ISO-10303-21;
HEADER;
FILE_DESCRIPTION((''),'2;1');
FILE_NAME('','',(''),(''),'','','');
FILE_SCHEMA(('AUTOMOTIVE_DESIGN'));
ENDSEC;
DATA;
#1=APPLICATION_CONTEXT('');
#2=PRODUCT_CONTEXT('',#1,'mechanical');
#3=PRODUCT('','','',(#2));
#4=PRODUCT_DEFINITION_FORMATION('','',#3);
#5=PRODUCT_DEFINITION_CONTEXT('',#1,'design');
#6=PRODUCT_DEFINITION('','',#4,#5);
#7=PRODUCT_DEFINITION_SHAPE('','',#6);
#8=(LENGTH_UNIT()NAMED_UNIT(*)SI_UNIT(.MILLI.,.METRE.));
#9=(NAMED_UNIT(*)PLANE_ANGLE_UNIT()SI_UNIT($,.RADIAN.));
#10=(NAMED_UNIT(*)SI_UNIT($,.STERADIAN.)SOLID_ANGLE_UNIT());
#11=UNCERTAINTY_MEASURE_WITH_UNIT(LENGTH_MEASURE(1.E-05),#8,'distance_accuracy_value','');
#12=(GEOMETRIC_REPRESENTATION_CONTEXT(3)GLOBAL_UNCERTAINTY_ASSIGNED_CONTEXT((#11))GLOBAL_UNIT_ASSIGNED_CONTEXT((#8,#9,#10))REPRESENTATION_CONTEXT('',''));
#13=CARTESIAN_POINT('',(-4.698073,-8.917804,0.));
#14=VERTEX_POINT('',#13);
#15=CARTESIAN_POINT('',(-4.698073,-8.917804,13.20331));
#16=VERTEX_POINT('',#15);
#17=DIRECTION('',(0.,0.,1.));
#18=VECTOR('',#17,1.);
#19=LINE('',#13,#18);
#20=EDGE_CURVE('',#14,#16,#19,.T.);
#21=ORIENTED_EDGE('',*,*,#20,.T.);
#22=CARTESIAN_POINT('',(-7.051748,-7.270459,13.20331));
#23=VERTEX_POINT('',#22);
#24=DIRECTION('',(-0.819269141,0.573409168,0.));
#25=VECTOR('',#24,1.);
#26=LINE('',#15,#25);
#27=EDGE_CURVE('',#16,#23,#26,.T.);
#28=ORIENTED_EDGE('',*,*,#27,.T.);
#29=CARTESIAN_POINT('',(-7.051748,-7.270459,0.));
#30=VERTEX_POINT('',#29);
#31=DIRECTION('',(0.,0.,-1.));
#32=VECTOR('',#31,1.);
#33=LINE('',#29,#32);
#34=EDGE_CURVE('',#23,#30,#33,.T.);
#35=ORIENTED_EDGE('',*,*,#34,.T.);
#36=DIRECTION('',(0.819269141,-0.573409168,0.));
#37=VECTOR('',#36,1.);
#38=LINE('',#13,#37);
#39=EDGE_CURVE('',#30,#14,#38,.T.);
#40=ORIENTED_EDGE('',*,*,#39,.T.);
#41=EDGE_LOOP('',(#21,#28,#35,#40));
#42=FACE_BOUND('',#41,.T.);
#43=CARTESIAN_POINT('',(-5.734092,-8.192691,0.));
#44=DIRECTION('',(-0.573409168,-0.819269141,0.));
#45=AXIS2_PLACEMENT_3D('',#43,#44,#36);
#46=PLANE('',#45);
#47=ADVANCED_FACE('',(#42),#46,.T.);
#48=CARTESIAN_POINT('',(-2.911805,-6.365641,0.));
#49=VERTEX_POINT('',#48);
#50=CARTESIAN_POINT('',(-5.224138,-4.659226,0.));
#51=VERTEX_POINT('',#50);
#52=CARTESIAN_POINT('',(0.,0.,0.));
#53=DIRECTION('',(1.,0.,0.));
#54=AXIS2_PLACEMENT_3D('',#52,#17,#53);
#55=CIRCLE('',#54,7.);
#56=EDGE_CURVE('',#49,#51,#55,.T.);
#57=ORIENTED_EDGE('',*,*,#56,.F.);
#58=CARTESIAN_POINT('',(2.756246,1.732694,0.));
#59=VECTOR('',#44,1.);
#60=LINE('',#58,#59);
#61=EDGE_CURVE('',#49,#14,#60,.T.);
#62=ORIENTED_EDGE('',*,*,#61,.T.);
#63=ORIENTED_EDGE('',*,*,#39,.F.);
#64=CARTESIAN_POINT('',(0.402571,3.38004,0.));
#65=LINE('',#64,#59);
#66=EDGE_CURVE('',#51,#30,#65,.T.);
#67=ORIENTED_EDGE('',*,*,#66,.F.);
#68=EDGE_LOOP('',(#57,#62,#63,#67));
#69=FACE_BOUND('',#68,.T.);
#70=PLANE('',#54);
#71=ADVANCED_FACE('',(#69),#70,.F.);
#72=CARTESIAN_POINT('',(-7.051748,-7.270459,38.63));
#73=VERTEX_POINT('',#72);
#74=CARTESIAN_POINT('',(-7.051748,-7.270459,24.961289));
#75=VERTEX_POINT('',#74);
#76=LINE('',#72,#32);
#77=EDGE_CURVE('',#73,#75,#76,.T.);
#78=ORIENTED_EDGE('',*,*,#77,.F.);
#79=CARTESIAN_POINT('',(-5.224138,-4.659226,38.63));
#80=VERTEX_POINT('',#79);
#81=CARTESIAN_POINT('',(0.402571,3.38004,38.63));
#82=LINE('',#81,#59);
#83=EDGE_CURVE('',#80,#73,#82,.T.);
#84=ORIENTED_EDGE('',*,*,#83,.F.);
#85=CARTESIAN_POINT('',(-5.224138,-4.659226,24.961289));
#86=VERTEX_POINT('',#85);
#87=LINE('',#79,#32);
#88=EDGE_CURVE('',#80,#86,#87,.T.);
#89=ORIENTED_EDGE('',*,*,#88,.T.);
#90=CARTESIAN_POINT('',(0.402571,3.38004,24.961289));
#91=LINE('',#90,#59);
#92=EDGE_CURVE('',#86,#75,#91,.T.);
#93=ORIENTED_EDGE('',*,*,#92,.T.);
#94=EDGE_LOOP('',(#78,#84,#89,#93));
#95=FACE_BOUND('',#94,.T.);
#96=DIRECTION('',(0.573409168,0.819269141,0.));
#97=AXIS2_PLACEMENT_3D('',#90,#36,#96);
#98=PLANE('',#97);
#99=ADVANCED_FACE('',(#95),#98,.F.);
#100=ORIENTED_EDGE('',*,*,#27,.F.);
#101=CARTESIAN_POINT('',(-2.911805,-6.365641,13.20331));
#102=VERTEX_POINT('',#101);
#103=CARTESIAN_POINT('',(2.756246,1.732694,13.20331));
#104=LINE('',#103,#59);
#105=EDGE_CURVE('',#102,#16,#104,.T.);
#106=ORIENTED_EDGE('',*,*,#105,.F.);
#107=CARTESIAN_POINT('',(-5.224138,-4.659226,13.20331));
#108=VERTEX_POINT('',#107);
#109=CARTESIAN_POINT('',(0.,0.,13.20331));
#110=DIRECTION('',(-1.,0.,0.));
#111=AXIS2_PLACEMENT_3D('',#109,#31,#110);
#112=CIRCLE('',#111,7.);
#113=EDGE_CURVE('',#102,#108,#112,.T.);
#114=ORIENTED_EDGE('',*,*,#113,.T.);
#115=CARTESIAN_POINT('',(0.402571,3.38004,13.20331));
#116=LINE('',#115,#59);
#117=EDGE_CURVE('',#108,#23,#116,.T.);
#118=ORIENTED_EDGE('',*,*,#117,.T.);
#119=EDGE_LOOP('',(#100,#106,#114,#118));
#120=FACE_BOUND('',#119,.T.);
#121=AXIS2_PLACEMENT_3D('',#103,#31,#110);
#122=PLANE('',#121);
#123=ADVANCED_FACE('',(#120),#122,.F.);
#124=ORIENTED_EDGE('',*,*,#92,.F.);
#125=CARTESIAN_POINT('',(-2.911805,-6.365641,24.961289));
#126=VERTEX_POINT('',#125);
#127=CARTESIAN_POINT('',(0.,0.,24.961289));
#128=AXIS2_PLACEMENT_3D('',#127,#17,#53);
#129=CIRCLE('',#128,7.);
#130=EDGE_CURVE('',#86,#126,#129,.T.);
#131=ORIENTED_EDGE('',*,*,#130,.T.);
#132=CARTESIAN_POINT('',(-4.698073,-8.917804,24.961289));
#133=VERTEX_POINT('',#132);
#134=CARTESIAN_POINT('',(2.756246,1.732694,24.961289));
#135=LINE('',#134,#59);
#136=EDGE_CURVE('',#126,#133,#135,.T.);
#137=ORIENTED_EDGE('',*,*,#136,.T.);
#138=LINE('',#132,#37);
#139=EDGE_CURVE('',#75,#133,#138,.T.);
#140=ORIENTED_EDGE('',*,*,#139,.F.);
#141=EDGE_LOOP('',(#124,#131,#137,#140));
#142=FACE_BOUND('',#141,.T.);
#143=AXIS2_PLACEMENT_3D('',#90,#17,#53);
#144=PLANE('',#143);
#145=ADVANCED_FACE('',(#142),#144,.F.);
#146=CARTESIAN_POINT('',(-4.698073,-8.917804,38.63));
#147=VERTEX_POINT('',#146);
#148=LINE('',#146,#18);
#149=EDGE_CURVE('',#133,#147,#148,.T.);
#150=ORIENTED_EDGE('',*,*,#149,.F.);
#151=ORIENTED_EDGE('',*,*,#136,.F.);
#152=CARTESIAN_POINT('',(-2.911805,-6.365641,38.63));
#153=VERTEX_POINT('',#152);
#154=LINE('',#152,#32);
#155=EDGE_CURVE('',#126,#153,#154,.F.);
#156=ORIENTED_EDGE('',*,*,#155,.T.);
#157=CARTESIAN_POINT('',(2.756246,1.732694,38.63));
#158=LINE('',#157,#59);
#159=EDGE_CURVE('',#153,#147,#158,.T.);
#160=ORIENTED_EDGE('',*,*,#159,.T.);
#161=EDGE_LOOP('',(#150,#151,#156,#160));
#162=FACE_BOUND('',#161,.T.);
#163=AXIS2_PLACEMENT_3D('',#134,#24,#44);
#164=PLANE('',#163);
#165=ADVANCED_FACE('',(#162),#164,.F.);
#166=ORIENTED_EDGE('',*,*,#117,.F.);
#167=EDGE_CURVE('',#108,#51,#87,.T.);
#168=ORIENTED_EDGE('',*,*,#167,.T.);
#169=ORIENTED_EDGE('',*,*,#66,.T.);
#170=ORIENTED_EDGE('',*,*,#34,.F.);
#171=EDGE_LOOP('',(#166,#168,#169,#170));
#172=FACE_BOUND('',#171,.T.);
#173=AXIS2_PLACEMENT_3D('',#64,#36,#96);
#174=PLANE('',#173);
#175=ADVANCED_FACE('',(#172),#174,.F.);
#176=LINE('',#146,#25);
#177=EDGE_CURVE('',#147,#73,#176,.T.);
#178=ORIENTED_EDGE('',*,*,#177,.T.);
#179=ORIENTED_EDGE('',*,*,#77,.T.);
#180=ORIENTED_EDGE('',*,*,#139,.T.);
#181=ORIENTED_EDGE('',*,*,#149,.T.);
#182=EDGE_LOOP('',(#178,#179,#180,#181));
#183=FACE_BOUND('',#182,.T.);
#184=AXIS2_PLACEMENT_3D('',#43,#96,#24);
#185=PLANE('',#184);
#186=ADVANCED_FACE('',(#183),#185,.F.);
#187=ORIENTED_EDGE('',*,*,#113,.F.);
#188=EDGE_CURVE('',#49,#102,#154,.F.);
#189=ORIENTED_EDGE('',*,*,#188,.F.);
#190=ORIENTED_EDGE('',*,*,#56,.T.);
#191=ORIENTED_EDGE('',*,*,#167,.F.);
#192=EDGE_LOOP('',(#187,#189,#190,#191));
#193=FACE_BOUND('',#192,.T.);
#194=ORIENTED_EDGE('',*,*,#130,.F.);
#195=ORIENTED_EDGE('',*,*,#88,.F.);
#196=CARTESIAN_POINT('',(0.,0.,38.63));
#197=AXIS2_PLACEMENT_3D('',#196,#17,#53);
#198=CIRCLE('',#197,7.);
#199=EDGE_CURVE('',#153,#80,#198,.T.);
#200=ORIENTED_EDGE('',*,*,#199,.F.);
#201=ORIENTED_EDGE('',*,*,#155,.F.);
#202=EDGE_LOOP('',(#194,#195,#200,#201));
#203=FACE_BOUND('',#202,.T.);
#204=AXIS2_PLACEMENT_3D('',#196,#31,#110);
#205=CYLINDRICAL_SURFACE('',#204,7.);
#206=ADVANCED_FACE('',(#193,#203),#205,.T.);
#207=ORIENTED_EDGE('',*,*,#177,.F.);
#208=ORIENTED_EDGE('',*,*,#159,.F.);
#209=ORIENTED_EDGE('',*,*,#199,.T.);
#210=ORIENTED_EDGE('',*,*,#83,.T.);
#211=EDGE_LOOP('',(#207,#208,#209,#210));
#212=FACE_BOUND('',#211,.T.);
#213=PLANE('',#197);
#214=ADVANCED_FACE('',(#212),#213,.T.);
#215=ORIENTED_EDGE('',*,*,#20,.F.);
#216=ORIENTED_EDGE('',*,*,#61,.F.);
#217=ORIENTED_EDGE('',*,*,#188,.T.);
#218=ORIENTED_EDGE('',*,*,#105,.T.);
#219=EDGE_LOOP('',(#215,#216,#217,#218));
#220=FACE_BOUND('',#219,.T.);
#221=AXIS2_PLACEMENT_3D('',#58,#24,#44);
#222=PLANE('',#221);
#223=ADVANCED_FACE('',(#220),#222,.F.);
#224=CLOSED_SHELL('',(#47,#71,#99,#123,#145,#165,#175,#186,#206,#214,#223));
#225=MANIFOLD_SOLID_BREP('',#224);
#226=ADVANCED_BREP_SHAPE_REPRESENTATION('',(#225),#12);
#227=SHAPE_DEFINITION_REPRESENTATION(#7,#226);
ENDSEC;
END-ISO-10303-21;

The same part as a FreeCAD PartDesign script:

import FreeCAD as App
import Part
import Sketcher
from FreeCAD import Vector
Q = App.Units.Quantity


def add_polygon(sketch, points):
    """Adds a closed chain of lines whose ends are joined by coincident constraints."""
    first, n = sketch.GeometryCount, len(points)
    for a, b in zip(points, points[1:] + points[:1]):
        sketch.addGeometry(Part.LineSegment(App.Vector(*a, 0), App.Vector(*b, 0)), False)
    for i in range(n):
        sketch.addConstraint(Sketcher.Constraint("Coincident", first + i, 2, first + (i + 1) % n, 1))

doc = App.newDocument("Part")
body = doc.addObject("PartDesign::Body", "Body")

sketch1 = body.newObject("Sketcher::SketchObject", "Sketch")
sketch1.AttachmentSupport = (doc.getObject("XY_Plane"), [""])
sketch1.MapMode = "FlatFace"
sketch1.addGeometry(Part.Circle(Vector(0, 0, 0), Vector(0, 0, 1), 7), False)
sketch1.addConstraint(Sketcher.Constraint("Coincident", 0, 3, -1, 1))
sketch1.addConstraint(Sketcher.Constraint("Diameter", 0, Q("14 mm")))
pad1 = body.newObject("PartDesign::Pad", "Pad")
pad1.Profile = sketch1
pad1.Length = 38.63
body2 = doc.addObject("PartDesign::Body", "Body001")

sketch2 = body2.newObject("Sketcher::SketchObject", "Sketch001")
sketch2.Placement = App.Placement(Vector(-4.013864, -5.734884, 0), App.Rotation(Vector(-0.819269141, 0.573409168, 0), Vector(0, 0, -0.999999999), Vector(-0.573409168, -0.819269141, 0), "ZXY"))
add_polygon(sketch2, [(-1.3, 0), (-1.3, -13.2), (1.6, -13.2), (1.6, 0)])
sketch2.addConstraint(Sketcher.Constraint("Vertical", 0))
sketch2.addConstraint(Sketcher.Constraint("Horizontal", 1))
sketch2.addConstraint(Sketcher.Constraint("Vertical", 2))
sketch2.addConstraint(Sketcher.Constraint("Horizontal", 3))
sketch2.addConstraint(Sketcher.Constraint("PointOnObject", 2, 2, -1))
sketch2.addConstraint(Sketcher.Constraint("DistanceY", 0, 2, 0, 1, Q("13.20331 mm")))
sketch2.addConstraint(Sketcher.Constraint("DistanceX", 1, 1, 1, 2, Q("2.872897 mm")))
sketch2.addConstraint(Sketcher.Constraint("DistanceX", 0, 2, -1, 1, Q("1.264565 mm")))
pad2 = body2.newObject("PartDesign::Pad", "Pad001")
pad2.Profile = sketch2
pad2.Length = 3
body3 = doc.addObject("PartDesign::Body", "Body002")

sketch3 = body3.newObject("Sketcher::SketchObject", "Sketch002")
sketch3.Placement = App.Placement(Vector(-4.013864, -5.734884, 0), App.Rotation(Vector(-0.819269141, 0.573409168, 0), Vector(0, 0, -0.999999999), Vector(-0.573409168, -0.819269141, 0), "ZXY"))
add_polygon(sketch3, [(-1.3, -25), (-1.3, -38.6), (1.6, -38.6), (1.6, -25)])
sketch3.addConstraint(Sketcher.Constraint("Vertical", 0))
sketch3.addConstraint(Sketcher.Constraint("Horizontal", 1))
sketch3.addConstraint(Sketcher.Constraint("Vertical", 2))
sketch3.addConstraint(Sketcher.Constraint("Horizontal", 3))
sketch3.addConstraint(Sketcher.Constraint("DistanceY", 0, 2, -1, 1, Q("38.63 mm")))
sketch3.addConstraint(Sketcher.Constraint("DistanceY", 0, 2, 0, 1, Q("13.668711 mm")))
sketch3.addConstraint(Sketcher.Constraint("DistanceX", 1, 1, 1, 2, Q("2.872897 mm")))
sketch3.addConstraint(Sketcher.Constraint("DistanceX", 0, 2, -1, 1, Q("1.264565 mm")))
pad3 = body3.newObject("PartDesign::Pad", "Pad002")
pad3.Profile = sketch3
pad3.Length = 3
body.AllowCompound = True
doc.recompute()

boolean = body.newObject("PartDesign::Boolean", "Boolean")
boolean.Type = "Fuse"
boolean.addObjects([body2])
doc.recompute()

boolean2 = body.newObject("PartDesign::Boolean", "Boolean001")
boolean2.Type = "Fuse"
boolean2.addObjects([body3])

sketch4 = body.newObject("Sketcher::SketchObject", "Sketch003")
sketch4.Placement = App.Placement(Vector(-4.013864, -5.734884, 0), App.Rotation(Vector(0.819269141, -0.573409168, 0), Vector(0, 0, -0.999999999), Vector(0.573409168, 0.819269141, 0), "ZXY"))
add_polygon(sketch4, [(-1.6, -25), (-1.6, -38.6), (1.3, -38.6), (1.3, -25)])
add_polygon(sketch4, [(-1.6, 0), (-1.6, -13.2), (1.3, -13.2), (1.3, 0)])
sketch4.addConstraint(Sketcher.Constraint("Vertical", 0))
sketch4.addConstraint(Sketcher.Constraint("Horizontal", 1))
sketch4.addConstraint(Sketcher.Constraint("Vertical", 2))
sketch4.addConstraint(Sketcher.Constraint("Horizontal", 3))
sketch4.addConstraint(Sketcher.Constraint("Vertical", 4))
sketch4.addConstraint(Sketcher.Constraint("Horizontal", 5))
sketch4.addConstraint(Sketcher.Constraint("Vertical", 6))
sketch4.addConstraint(Sketcher.Constraint("Horizontal", 7))
sketch4.addConstraint(Sketcher.Constraint("PointOnObject", 6, 2, -1))
sketch4.addConstraint(Sketcher.Constraint("Vertical", 3, 2, 4, 2))
sketch4.addConstraint(Sketcher.Constraint("Vertical", 2, 2, 5, 2))
sketch4.addConstraint(Sketcher.Constraint("DistanceY", 0, 2, -1, 1, Q("38.63 mm")))
sketch4.addConstraint(Sketcher.Constraint("DistanceY", 0, 2, 0, 1, Q("13.668711 mm")))
sketch4.addConstraint(Sketcher.Constraint("DistanceY", 4, 2, 4, 1, Q("13.20331 mm")))
sketch4.addConstraint(Sketcher.Constraint("DistanceX", 1, 1, 1, 2, Q("2.872897 mm")))
sketch4.addConstraint(Sketcher.Constraint("DistanceX", 0, 2, -1, 1, Q("1.608332 mm")))
pad4 = body.newObject("PartDesign::Pad", "Pad003")
pad4.Profile = sketch4
pad4.Length = 10

doc.recompute()
